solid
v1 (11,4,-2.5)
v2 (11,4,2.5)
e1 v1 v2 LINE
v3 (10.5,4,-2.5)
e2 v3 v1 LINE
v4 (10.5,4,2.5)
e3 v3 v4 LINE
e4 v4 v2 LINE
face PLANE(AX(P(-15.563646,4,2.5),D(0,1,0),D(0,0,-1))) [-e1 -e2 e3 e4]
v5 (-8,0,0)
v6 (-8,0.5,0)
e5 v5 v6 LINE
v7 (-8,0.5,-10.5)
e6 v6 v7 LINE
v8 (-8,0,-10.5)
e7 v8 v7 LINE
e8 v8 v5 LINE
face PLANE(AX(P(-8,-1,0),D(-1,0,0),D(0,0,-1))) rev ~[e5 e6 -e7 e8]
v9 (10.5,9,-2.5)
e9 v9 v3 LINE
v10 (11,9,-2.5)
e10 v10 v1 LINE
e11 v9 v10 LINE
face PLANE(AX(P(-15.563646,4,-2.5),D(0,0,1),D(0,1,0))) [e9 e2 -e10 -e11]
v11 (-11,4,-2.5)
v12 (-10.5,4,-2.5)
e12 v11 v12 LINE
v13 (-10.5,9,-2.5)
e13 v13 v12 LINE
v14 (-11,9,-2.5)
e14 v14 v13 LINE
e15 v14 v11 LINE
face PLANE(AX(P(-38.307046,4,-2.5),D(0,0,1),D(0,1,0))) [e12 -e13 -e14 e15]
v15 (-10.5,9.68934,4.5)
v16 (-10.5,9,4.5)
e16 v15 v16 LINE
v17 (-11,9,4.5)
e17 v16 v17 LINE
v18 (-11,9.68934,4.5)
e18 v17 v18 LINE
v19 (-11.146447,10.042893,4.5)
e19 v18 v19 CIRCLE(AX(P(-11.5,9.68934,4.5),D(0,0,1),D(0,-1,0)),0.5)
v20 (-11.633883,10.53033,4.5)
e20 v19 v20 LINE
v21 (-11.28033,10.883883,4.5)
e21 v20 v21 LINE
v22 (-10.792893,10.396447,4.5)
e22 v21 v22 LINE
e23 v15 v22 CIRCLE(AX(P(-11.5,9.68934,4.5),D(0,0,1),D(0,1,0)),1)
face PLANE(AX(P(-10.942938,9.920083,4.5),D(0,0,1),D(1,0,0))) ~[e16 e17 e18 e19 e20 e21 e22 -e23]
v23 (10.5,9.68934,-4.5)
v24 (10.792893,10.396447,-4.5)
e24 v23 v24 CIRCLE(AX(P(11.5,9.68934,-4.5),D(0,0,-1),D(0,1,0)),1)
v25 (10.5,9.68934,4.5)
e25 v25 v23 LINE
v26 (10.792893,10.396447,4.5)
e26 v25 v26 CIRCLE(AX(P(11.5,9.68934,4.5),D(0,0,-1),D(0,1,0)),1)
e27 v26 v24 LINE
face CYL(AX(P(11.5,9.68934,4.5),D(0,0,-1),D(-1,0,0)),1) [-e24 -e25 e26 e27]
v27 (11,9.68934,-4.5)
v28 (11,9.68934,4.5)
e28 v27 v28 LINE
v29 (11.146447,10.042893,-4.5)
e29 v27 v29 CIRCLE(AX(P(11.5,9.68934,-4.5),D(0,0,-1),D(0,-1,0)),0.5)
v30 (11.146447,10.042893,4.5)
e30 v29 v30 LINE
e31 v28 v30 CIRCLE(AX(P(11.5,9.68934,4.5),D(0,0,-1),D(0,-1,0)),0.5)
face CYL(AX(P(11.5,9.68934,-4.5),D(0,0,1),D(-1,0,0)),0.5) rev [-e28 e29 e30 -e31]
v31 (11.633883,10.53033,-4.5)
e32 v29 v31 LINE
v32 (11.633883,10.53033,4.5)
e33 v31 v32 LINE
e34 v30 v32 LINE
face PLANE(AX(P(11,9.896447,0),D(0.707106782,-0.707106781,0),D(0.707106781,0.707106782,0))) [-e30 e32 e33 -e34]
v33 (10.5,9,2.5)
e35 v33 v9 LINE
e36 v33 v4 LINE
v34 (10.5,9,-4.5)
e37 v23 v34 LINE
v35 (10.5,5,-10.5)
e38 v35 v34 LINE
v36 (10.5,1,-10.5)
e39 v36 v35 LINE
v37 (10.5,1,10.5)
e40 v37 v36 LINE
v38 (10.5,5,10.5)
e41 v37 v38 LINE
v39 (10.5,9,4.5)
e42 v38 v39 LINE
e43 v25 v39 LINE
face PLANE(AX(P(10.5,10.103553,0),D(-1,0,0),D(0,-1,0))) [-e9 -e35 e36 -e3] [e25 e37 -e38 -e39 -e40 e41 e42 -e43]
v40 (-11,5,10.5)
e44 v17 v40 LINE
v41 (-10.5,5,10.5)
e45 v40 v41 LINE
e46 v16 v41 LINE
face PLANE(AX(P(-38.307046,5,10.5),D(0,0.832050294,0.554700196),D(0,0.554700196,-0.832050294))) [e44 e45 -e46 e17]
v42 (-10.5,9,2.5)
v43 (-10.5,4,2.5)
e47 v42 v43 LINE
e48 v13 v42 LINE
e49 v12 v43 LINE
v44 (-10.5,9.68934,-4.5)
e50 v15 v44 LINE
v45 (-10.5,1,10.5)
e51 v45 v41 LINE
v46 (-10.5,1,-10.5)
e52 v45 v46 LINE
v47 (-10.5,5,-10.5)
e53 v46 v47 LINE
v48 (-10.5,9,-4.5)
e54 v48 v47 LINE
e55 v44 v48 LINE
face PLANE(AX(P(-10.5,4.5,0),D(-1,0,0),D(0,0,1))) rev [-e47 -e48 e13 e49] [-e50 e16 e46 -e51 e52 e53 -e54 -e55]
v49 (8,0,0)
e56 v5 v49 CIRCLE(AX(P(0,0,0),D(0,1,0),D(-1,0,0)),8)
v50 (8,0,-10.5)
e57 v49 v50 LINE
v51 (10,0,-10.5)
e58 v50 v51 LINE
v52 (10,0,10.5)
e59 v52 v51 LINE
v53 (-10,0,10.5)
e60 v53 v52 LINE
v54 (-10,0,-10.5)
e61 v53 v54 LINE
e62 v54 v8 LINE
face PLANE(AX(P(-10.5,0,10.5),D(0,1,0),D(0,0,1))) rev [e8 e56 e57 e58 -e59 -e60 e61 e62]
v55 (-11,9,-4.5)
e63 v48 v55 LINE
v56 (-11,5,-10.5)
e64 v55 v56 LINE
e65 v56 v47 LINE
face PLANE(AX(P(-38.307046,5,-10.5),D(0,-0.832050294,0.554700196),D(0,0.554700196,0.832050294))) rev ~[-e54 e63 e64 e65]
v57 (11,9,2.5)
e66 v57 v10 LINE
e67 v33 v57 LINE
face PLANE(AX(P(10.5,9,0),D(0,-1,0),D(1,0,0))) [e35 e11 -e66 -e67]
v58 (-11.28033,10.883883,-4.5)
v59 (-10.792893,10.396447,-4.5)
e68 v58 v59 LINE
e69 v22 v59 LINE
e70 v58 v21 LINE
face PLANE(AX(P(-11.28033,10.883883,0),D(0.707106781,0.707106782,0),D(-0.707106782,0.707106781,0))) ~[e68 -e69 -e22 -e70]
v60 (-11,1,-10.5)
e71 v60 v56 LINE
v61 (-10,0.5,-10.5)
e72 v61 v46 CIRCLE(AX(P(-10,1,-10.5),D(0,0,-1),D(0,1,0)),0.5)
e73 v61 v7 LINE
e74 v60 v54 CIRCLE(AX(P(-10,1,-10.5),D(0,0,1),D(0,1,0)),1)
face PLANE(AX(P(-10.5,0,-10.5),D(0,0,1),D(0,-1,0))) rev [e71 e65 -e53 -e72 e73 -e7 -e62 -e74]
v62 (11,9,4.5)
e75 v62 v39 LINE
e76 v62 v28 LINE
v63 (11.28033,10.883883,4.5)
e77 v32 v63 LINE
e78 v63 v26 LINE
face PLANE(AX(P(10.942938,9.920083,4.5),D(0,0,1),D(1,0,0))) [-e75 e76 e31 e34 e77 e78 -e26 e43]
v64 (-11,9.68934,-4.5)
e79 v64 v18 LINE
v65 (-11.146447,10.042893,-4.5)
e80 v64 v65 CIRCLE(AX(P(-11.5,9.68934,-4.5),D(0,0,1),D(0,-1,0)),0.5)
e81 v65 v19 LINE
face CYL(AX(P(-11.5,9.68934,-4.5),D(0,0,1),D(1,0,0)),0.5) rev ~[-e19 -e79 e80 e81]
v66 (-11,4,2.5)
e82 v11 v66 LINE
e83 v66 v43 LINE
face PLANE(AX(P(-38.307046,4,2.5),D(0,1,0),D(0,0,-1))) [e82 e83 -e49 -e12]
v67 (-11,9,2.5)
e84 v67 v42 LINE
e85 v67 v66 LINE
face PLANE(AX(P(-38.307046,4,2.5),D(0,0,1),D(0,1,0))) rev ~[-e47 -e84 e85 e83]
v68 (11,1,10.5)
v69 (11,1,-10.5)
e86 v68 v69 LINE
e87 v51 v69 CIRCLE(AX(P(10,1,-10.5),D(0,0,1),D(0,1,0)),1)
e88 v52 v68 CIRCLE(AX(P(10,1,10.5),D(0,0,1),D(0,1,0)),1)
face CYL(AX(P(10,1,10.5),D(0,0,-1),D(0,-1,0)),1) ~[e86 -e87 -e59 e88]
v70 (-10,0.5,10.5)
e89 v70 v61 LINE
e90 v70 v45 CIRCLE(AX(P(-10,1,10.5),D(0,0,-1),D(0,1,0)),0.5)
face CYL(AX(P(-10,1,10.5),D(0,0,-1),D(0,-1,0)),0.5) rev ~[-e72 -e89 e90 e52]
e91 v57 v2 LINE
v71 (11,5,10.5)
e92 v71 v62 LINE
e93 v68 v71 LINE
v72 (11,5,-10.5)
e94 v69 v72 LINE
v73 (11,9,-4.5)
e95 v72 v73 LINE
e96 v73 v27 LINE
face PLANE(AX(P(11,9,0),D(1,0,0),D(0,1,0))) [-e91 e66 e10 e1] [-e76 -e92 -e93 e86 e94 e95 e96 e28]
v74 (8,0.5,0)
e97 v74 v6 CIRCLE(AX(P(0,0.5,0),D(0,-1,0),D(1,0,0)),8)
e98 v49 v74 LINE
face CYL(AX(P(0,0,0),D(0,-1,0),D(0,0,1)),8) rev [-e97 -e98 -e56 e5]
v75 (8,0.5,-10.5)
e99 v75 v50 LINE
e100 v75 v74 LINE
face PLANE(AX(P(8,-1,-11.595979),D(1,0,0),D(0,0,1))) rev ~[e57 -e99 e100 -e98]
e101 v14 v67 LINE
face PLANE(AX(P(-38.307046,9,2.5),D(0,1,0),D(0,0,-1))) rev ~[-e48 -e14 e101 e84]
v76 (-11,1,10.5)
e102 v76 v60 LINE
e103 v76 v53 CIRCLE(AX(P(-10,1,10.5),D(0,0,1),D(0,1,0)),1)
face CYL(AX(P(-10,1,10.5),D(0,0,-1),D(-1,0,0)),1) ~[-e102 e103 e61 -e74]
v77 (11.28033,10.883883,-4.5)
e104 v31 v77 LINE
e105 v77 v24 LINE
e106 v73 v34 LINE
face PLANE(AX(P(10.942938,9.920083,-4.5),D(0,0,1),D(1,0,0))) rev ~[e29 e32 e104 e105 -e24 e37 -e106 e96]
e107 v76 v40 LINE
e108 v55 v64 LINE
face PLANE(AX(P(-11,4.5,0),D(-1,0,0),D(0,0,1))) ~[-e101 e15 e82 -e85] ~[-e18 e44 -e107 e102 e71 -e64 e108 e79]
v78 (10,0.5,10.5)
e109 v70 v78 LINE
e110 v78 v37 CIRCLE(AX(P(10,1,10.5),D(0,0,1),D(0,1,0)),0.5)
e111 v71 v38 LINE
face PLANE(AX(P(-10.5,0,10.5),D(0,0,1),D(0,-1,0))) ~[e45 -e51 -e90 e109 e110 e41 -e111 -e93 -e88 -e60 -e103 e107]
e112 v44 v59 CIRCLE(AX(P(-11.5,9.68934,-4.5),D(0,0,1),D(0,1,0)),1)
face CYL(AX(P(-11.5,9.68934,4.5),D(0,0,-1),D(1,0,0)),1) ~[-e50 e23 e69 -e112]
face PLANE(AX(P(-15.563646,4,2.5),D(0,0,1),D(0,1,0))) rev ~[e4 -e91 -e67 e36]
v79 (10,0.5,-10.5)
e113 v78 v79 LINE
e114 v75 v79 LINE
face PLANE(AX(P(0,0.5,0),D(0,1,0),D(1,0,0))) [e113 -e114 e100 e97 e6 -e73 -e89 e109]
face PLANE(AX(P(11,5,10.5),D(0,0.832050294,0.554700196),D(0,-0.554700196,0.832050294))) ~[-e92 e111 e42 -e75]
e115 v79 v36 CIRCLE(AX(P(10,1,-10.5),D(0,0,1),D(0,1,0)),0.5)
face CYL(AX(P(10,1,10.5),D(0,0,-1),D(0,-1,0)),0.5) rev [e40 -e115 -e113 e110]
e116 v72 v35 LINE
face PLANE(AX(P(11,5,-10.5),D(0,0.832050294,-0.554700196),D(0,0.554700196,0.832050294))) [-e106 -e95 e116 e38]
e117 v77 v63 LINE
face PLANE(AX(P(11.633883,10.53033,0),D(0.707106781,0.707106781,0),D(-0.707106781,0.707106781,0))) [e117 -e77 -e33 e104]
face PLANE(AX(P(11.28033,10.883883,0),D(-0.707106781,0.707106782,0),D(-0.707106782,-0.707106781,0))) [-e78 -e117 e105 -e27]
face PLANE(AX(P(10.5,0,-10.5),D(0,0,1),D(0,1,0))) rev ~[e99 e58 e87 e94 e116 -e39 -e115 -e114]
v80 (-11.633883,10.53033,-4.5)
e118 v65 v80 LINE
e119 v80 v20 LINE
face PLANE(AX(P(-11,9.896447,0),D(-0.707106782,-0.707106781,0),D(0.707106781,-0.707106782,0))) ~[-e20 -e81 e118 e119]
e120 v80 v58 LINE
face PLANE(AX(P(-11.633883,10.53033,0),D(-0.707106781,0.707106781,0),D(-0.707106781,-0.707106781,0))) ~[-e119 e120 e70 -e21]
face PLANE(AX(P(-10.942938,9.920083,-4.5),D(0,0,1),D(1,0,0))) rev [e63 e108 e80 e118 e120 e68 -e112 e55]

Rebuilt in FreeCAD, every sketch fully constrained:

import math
import FreeCAD as App
import Part
import Sketcher
from FreeCAD import Vector
Q = App.Units.Quantity


def edges_at(feature, points):
    """Names of the edges that pass closest to the given points."""
    edges = feature.Shape.Edges
    near = lambda p: min(range(len(edges)), key=lambda i: edges[i].distToShape(Part.Vertex(*p))[0])
    return sorted({f"Edge{near(p) + 1}" for p in points})


def add_polygon(sketch, points):
    """Adds a closed chain of lines whose ends are joined by coincident constraints."""
    first, n = sketch.GeometryCount, len(points)
    for a, b in zip(points, points[1:] + points[:1]):
        sketch.addGeometry(Part.LineSegment(App.Vector(*a, 0), App.Vector(*b, 0)), False)
    for i in range(n):
        sketch.addConstraint(Sketcher.Constraint("Coincident", first + i, 2, first + (i + 1) % n, 1))

doc = App.newDocument("Part")
body = doc.addObject("PartDesign::Body", "Body")

# Sketch on XZ plane
sketch1 = body.newObject("Sketcher::SketchObject", "Sketch")
sketch1.AttachmentSupport = (doc.getObject("XZ_Plane"), [""])
sketch1.MapMode = "FlatFace"
add_polygon(sketch1, [(-10, -10), (-10, 10), (10, 10), (10, -10)])  # lines 0-3
sketch1.addGeometry(Part.Circle(Vector(0, 0, 0), Vector(0, 0, 1), 8), False)  # 4
sketch1.addConstraint([
    Sketcher.Constraint("Vertical", 0),
    Sketcher.Constraint("Horizontal", 1),
    Sketcher.Constraint("Vertical", 2),
    Sketcher.Constraint("Horizontal", 3),
    Sketcher.Constraint("Coincident", 4, 3, -1, 1),
    Sketcher.Constraint("Symmetric", 0, 2, 2, 2, -1, 1),
    Sketcher.Constraint("Equal", 3, 0),
    Sketcher.Constraint("Diameter", 4, 16.0),
    Sketcher.Constraint("DistanceX", 1, 1, 1, 2, 21.0),
])
pad1 = body.newObject("PartDesign::Pad", "Pad")
pad1.Profile = sketch1
pad1.Length = 0.5
pad1.Reversed = True

# Sketch on XZ plane
sketch2 = body.newObject("Sketcher::SketchObject", "Sketch001")
sketch2.AttachmentSupport = (doc.getObject("XZ_Plane"), [""])
sketch2.MapMode = "FlatFace"
sketch2.AttachmentOffset = App.Placement(Vector(0, 0, 1), App.Rotation())
sketch2.addGeometry([
    Part.LineSegment(Vector(-8, -12, 0), Vector(-8, 0, 0)),
    Part.ArcOfCircle(Part.Circle(Vector(0, 0, 0), Vector(0, 0, 1), 8), math.radians(0), math.radians(180)),
    Part.LineSegment(Vector(8, 0, 0), Vector(8, -12, 0)),
    Part.LineSegment(Vector(8, -12, 0), Vector(-8, -12, 0)),
], False)
sketch2.addConstraint([
    Sketcher.Constraint("Tangent", 0, 2, 1, 2),
    Sketcher.Constraint("Tangent", 1, 1, 2, 1),
    Sketcher.Constraint("Coincident", 2, 2, 3, 1),
    Sketcher.Constraint("Coincident", 3, 2, 0, 1),
    Sketcher.Constraint("Vertical", 0),
    Sketcher.Constraint("Vertical", 2),
    Sketcher.Constraint("Horizontal", 3),
    Sketcher.Constraint("Coincident", 1, 3, -1, 1),
    Sketcher.Constraint("Radius", 1, 8.0),
    Sketcher.Constraint("DistanceY", 0, 1, 0, 2, 11.595979),
])
pocket1 = body.newObject("PartDesign::Pocket", "Pocket")
pocket1.Profile = sketch2
pocket1.Length = 1.5

# Sketch on YZ plane
sketch3 = body.newObject("Sketcher::SketchObject", "Sketch002")
sketch3.AttachmentSupport = (doc.getObject("YZ_Plane"), [""])
sketch3.MapMode = "FlatFace"
sketch3.AttachmentOffset = App.Placement(Vector(0, 0, 10.5), App.Rotation())
add_polygon(sketch3, [(9, 10), (0, 10), (0, -10), (9, -10)])  # lines 0-3
sketch3.addConstraint([
    Sketcher.Constraint("Horizontal", 0),
    Sketcher.Constraint("Vertical", 1),
    Sketcher.Constraint("Horizontal", 2),
    Sketcher.Constraint("Vertical", 3),
    Sketcher.Constraint("Symmetric", 0, 2, 1, 2, -1, 1),
    Sketcher.Constraint("DistanceX", 0, 2, 0, 1, 9.0),
    Sketcher.Constraint("DistanceY", 1, 2, 1, 1, 21.0),
])
pad2 = body.newObject("PartDesign::Pad", "Pad001")
pad2.Profile = sketch3
pad2.Length = 0.5

# Sketch on YZ plane
sketch4 = body.newObject("Sketcher::SketchObject", "Sketch003")
sketch4.AttachmentSupport = (doc.getObject("YZ_Plane"), [""])
sketch4.MapMode = "FlatFace"
sketch4.AttachmentOffset = App.Placement(Vector(0, 0, 11), App.Rotation())
add_polygon(sketch4, [(9, 2), (4, 2), (4, -2), (9, -2)])  # lines 0-3
sketch4.addConstraint([
    Sketcher.Constraint("Horizontal", 0),
    Sketcher.Constraint("Vertical", 1),
    Sketcher.Constraint("Horizontal", 2),
    Sketcher.Constraint("Vertical", 3),
    Sketcher.Constraint("Equal", 2, 1),
    Sketcher.Constraint("DistanceX", 0, 2, 0, 1, 5.0),
    Sketcher.Constraint("DistanceX", -1, 1, 0, 2, 4.0),
    Sketcher.Constraint("DistanceY", -1, 1, 0, 2, 2.5),
])
pocket2 = body.newObject("PartDesign::Pocket", "Pocket001")
pocket2.Profile = sketch4
pocket2.Type = "ThroughAll"
pocket2.Midplane = True

# Sketch on YZ plane
sketch5 = body.newObject("Sketcher::SketchObject", "Sketch004")
sketch5.AttachmentSupport = (doc.getObject("YZ_Plane"), [""])
sketch5.MapMode = "FlatFace"
sketch5.AttachmentOffset = App.Placement(Vector(0, 0, 11), App.Rotation())
add_polygon(sketch5, [(9, -4.5), (5, -10.5), (5, -11.7), (12.5, -11.7), (12.5, -4.5)])  # lines 0-4
sketch5.addConstraint([
    Sketcher.Constraint("Vertical", 1),
    Sketcher.Constraint("Horizontal", 2),
    Sketcher.Constraint("Vertical", 3),
    Sketcher.Constraint("Horizontal", 4),
    Sketcher.Constraint("DistanceX", -1, 1, 0, 2, 5.0),
    Sketcher.Constraint("DistanceX", -1, 1, 4, 2, 9.0),
    Sketcher.Constraint("DistanceY", 0, 2, 3, 2, 6.0),
    Sketcher.Constraint("DistanceY", 0, 2, -1, 1, 10.5),
    Sketcher.Constraint("DistanceX", 2, 1, 2, 2, 7.483473),
    Sketcher.Constraint("DistanceY", 1, 2, 1, 1, 1.234785),
])
pocket3 = body.newObject("PartDesign::Pocket", "Pocket002")
pocket3.Profile = sketch5
pocket3.Length = 1.5
doc.recompute()

mirrored = body.newObject("PartDesign::Mirrored", "Mirrored")
mirrored.Originals = [pocket3]
mirrored.MirrorPlane = (doc.getObject("XY_Plane"), [""])
body.Tip = mirrored
doc.recompute()

fillet = body.newObject("PartDesign::Fillet", "Fillet")
fillet.Base = (mirrored, edges_at(mirrored, [(11, 0, 0)]))
fillet.Radius = 1
doc.recompute()

fillet2 = body.newObject("PartDesign::Fillet", "Fillet001")
fillet2.Base = (fillet, edges_at(fillet, [(10.5, 0.5, 0)]))
fillet2.Radius = 0.5

# Sketch on XY plane
sketch6 = body.newObject("Sketcher::SketchObject", "Sketch005")
sketch6.AttachmentSupport = (doc.getObject("XY_Plane"), [""])
sketch6.MapMode = "FlatFace"
add_polygon(sketch6, [(11, 9), (11, 9.9), (11.63, 10.53), (11.28, 10.88), (10.5, 10.1), (10.5, 9)])  # lines 0-5
sketch6.addConstraint([
    Sketcher.Constraint("Vertical", 0),
    Sketcher.Constraint("Vertical", 4),
    Sketcher.Constraint("Horizontal", 5),
    Sketcher.Constraint("Perpendicular", 1, 2),
    Sketcher.Constraint("Perpendicular", 2, 3),
    Sketcher.Constraint("Angle", 1, Q("45 deg")),
    Sketcher.Constraint("DistanceX", 5, 1, 5, 2, 0.5),
    Sketcher.Constraint("DistanceX", -1, 1, 0, 2, 11.0),
    Sketcher.Constraint("DistanceY", -1, 1, 4, 2, 9.0),
    Sketcher.Constraint("Distance", 2, 0.5),
    Sketcher.Constraint("DistanceY", 0, 1, 0, 2, 0.896447),
    Sketcher.Constraint("DistanceY", -1, 1, 1, 2, 10.53033),
])
pad3 = body.newObject("PartDesign::Pad", "Pad002")
pad3.Profile = sketch6
pad3.Length = 9
pad3.Midplane = True
doc.recompute()

fillet3 = body.newObject("PartDesign::Fillet", "Fillet002")
fillet3.Base = (pad3, edges_at(pad3, [(11, 9.896, 0)]))
fillet3.Radius = 0.5
doc.recompute()

fillet4 = body.newObject("PartDesign::Fillet", "Fillet003")
fillet4.Base = (fillet3, edges_at(fillet3, [(10.5, 10.104, 0)]))
fillet4.Radius = 1
doc.recompute()

mirrored2 = body.newObject("PartDesign::Mirrored", "Mirrored001")
mirrored2.Originals = [pad2, pad3]
mirrored2.MirrorPlane = (doc.getObject("YZ_Plane"), [""])
body.Tip = mirrored2

# Sketch on YZ plane
sketch7 = body.newObject("Sketcher::SketchObject", "Sketch006")
sketch7.AttachmentSupport = (doc.getObject("YZ_Plane"), [""])
sketch7.MapMode = "FlatFace"
sketch7.AttachmentOffset = App.Placement(Vector(0, 0, -10.5), App.Rotation())
add_polygon(sketch7, [(13.5, -4.5), (9, -4.5), (5, -10.5), (5, -11.9), (13.5, -11.9)])  # lines 0-4
add_polygon(sketch7, [(9, 2.5), (4, 2.5), (4, -2.5), (9, -2.5)])  # lines 5-8
add_polygon(sketch7, [(5, 10.5), (9, 4.5), (13.5, 4.5), (13.5, 11.9), (5, 11.9)])  # lines 9-13
sketch7.addConstraint([
    Sketcher.Constraint("Horizontal", 0),
    Sketcher.Constraint("Horizontal", 3),
    Sketcher.Constraint("Vertical", 4),
    Sketcher.Constraint("Horizontal", 5),
    Sketcher.Constraint("Vertical", 6),
    Sketcher.Constraint("Horizontal", 7),
    Sketcher.Constraint("Vertical", 8),
    Sketcher.Constraint("Horizontal", 10),
    Sketcher.Constraint("Vertical", 11),
    Sketcher.Constraint("Horizontal", 12),
    Sketcher.Constraint("Symmetric", 0, 2, 9, 2, -1),
    Sketcher.Constraint("Symmetric", 3, 2, 11, 2, -1),
    Sketcher.Constraint("Symmetric", 1, 2, 13, 2, -1),
    Sketcher.Constraint("Vertical", 0, 2, 7, 2),
    Sketcher.Constraint("Vertical", 2, 2, 12, 2),
    Sketcher.Constraint("Equal", 7, 6),
    Sketcher.Constraint("DistanceX", 5, 2, 5, 1, 5.0),
    Sketcher.Constraint("DistanceX", -1, 1, 0, 2, 9.0),
    Sketcher.Constraint("DistanceX", -1, 1, 1, 2, 5.0),
    Sketcher.Constraint("DistanceY", 1, 2, 0, 2, 6.0),
    Sketcher.Constraint("DistanceY", 0, 2, 5, 2, 7.0),
    Sketcher.Constraint("DistanceY", 8, 2, 9, 2, 2.0),
    Sketcher.Constraint("DistanceX", 0, 2, 0, 1, 4.510449),
    Sketcher.Constraint("DistanceX", 3, 1, 3, 2, 8.524726),
    Sketcher.Constraint("DistanceY", 4, 1, 4, 2, 7.404854),
])
pocket4 = body.newObject("PartDesign::Pocket", "Pocket003")
pocket4.Profile = sketch7
pocket4.Type = "ThroughAll"
pocket4.Midplane = True
doc.recompute()

fillet5 = body.newObject("PartDesign::Fillet", "Fillet004")
fillet5.Base = (pocket4, edges_at(pocket4, [(-10.5, 0.5, 0), (-11, 9.896, 0)]))
fillet5.Radius = 0.5
doc.recompute()

fillet6 = body.newObject("PartDesign::Fillet", "Fillet005")
fillet6.Base = (fillet5, edges_at(fillet5, [(-11, 0, 0), (-10.5, 10.104, 0)]))
fillet6.Radius = 1

doc.recompute()
